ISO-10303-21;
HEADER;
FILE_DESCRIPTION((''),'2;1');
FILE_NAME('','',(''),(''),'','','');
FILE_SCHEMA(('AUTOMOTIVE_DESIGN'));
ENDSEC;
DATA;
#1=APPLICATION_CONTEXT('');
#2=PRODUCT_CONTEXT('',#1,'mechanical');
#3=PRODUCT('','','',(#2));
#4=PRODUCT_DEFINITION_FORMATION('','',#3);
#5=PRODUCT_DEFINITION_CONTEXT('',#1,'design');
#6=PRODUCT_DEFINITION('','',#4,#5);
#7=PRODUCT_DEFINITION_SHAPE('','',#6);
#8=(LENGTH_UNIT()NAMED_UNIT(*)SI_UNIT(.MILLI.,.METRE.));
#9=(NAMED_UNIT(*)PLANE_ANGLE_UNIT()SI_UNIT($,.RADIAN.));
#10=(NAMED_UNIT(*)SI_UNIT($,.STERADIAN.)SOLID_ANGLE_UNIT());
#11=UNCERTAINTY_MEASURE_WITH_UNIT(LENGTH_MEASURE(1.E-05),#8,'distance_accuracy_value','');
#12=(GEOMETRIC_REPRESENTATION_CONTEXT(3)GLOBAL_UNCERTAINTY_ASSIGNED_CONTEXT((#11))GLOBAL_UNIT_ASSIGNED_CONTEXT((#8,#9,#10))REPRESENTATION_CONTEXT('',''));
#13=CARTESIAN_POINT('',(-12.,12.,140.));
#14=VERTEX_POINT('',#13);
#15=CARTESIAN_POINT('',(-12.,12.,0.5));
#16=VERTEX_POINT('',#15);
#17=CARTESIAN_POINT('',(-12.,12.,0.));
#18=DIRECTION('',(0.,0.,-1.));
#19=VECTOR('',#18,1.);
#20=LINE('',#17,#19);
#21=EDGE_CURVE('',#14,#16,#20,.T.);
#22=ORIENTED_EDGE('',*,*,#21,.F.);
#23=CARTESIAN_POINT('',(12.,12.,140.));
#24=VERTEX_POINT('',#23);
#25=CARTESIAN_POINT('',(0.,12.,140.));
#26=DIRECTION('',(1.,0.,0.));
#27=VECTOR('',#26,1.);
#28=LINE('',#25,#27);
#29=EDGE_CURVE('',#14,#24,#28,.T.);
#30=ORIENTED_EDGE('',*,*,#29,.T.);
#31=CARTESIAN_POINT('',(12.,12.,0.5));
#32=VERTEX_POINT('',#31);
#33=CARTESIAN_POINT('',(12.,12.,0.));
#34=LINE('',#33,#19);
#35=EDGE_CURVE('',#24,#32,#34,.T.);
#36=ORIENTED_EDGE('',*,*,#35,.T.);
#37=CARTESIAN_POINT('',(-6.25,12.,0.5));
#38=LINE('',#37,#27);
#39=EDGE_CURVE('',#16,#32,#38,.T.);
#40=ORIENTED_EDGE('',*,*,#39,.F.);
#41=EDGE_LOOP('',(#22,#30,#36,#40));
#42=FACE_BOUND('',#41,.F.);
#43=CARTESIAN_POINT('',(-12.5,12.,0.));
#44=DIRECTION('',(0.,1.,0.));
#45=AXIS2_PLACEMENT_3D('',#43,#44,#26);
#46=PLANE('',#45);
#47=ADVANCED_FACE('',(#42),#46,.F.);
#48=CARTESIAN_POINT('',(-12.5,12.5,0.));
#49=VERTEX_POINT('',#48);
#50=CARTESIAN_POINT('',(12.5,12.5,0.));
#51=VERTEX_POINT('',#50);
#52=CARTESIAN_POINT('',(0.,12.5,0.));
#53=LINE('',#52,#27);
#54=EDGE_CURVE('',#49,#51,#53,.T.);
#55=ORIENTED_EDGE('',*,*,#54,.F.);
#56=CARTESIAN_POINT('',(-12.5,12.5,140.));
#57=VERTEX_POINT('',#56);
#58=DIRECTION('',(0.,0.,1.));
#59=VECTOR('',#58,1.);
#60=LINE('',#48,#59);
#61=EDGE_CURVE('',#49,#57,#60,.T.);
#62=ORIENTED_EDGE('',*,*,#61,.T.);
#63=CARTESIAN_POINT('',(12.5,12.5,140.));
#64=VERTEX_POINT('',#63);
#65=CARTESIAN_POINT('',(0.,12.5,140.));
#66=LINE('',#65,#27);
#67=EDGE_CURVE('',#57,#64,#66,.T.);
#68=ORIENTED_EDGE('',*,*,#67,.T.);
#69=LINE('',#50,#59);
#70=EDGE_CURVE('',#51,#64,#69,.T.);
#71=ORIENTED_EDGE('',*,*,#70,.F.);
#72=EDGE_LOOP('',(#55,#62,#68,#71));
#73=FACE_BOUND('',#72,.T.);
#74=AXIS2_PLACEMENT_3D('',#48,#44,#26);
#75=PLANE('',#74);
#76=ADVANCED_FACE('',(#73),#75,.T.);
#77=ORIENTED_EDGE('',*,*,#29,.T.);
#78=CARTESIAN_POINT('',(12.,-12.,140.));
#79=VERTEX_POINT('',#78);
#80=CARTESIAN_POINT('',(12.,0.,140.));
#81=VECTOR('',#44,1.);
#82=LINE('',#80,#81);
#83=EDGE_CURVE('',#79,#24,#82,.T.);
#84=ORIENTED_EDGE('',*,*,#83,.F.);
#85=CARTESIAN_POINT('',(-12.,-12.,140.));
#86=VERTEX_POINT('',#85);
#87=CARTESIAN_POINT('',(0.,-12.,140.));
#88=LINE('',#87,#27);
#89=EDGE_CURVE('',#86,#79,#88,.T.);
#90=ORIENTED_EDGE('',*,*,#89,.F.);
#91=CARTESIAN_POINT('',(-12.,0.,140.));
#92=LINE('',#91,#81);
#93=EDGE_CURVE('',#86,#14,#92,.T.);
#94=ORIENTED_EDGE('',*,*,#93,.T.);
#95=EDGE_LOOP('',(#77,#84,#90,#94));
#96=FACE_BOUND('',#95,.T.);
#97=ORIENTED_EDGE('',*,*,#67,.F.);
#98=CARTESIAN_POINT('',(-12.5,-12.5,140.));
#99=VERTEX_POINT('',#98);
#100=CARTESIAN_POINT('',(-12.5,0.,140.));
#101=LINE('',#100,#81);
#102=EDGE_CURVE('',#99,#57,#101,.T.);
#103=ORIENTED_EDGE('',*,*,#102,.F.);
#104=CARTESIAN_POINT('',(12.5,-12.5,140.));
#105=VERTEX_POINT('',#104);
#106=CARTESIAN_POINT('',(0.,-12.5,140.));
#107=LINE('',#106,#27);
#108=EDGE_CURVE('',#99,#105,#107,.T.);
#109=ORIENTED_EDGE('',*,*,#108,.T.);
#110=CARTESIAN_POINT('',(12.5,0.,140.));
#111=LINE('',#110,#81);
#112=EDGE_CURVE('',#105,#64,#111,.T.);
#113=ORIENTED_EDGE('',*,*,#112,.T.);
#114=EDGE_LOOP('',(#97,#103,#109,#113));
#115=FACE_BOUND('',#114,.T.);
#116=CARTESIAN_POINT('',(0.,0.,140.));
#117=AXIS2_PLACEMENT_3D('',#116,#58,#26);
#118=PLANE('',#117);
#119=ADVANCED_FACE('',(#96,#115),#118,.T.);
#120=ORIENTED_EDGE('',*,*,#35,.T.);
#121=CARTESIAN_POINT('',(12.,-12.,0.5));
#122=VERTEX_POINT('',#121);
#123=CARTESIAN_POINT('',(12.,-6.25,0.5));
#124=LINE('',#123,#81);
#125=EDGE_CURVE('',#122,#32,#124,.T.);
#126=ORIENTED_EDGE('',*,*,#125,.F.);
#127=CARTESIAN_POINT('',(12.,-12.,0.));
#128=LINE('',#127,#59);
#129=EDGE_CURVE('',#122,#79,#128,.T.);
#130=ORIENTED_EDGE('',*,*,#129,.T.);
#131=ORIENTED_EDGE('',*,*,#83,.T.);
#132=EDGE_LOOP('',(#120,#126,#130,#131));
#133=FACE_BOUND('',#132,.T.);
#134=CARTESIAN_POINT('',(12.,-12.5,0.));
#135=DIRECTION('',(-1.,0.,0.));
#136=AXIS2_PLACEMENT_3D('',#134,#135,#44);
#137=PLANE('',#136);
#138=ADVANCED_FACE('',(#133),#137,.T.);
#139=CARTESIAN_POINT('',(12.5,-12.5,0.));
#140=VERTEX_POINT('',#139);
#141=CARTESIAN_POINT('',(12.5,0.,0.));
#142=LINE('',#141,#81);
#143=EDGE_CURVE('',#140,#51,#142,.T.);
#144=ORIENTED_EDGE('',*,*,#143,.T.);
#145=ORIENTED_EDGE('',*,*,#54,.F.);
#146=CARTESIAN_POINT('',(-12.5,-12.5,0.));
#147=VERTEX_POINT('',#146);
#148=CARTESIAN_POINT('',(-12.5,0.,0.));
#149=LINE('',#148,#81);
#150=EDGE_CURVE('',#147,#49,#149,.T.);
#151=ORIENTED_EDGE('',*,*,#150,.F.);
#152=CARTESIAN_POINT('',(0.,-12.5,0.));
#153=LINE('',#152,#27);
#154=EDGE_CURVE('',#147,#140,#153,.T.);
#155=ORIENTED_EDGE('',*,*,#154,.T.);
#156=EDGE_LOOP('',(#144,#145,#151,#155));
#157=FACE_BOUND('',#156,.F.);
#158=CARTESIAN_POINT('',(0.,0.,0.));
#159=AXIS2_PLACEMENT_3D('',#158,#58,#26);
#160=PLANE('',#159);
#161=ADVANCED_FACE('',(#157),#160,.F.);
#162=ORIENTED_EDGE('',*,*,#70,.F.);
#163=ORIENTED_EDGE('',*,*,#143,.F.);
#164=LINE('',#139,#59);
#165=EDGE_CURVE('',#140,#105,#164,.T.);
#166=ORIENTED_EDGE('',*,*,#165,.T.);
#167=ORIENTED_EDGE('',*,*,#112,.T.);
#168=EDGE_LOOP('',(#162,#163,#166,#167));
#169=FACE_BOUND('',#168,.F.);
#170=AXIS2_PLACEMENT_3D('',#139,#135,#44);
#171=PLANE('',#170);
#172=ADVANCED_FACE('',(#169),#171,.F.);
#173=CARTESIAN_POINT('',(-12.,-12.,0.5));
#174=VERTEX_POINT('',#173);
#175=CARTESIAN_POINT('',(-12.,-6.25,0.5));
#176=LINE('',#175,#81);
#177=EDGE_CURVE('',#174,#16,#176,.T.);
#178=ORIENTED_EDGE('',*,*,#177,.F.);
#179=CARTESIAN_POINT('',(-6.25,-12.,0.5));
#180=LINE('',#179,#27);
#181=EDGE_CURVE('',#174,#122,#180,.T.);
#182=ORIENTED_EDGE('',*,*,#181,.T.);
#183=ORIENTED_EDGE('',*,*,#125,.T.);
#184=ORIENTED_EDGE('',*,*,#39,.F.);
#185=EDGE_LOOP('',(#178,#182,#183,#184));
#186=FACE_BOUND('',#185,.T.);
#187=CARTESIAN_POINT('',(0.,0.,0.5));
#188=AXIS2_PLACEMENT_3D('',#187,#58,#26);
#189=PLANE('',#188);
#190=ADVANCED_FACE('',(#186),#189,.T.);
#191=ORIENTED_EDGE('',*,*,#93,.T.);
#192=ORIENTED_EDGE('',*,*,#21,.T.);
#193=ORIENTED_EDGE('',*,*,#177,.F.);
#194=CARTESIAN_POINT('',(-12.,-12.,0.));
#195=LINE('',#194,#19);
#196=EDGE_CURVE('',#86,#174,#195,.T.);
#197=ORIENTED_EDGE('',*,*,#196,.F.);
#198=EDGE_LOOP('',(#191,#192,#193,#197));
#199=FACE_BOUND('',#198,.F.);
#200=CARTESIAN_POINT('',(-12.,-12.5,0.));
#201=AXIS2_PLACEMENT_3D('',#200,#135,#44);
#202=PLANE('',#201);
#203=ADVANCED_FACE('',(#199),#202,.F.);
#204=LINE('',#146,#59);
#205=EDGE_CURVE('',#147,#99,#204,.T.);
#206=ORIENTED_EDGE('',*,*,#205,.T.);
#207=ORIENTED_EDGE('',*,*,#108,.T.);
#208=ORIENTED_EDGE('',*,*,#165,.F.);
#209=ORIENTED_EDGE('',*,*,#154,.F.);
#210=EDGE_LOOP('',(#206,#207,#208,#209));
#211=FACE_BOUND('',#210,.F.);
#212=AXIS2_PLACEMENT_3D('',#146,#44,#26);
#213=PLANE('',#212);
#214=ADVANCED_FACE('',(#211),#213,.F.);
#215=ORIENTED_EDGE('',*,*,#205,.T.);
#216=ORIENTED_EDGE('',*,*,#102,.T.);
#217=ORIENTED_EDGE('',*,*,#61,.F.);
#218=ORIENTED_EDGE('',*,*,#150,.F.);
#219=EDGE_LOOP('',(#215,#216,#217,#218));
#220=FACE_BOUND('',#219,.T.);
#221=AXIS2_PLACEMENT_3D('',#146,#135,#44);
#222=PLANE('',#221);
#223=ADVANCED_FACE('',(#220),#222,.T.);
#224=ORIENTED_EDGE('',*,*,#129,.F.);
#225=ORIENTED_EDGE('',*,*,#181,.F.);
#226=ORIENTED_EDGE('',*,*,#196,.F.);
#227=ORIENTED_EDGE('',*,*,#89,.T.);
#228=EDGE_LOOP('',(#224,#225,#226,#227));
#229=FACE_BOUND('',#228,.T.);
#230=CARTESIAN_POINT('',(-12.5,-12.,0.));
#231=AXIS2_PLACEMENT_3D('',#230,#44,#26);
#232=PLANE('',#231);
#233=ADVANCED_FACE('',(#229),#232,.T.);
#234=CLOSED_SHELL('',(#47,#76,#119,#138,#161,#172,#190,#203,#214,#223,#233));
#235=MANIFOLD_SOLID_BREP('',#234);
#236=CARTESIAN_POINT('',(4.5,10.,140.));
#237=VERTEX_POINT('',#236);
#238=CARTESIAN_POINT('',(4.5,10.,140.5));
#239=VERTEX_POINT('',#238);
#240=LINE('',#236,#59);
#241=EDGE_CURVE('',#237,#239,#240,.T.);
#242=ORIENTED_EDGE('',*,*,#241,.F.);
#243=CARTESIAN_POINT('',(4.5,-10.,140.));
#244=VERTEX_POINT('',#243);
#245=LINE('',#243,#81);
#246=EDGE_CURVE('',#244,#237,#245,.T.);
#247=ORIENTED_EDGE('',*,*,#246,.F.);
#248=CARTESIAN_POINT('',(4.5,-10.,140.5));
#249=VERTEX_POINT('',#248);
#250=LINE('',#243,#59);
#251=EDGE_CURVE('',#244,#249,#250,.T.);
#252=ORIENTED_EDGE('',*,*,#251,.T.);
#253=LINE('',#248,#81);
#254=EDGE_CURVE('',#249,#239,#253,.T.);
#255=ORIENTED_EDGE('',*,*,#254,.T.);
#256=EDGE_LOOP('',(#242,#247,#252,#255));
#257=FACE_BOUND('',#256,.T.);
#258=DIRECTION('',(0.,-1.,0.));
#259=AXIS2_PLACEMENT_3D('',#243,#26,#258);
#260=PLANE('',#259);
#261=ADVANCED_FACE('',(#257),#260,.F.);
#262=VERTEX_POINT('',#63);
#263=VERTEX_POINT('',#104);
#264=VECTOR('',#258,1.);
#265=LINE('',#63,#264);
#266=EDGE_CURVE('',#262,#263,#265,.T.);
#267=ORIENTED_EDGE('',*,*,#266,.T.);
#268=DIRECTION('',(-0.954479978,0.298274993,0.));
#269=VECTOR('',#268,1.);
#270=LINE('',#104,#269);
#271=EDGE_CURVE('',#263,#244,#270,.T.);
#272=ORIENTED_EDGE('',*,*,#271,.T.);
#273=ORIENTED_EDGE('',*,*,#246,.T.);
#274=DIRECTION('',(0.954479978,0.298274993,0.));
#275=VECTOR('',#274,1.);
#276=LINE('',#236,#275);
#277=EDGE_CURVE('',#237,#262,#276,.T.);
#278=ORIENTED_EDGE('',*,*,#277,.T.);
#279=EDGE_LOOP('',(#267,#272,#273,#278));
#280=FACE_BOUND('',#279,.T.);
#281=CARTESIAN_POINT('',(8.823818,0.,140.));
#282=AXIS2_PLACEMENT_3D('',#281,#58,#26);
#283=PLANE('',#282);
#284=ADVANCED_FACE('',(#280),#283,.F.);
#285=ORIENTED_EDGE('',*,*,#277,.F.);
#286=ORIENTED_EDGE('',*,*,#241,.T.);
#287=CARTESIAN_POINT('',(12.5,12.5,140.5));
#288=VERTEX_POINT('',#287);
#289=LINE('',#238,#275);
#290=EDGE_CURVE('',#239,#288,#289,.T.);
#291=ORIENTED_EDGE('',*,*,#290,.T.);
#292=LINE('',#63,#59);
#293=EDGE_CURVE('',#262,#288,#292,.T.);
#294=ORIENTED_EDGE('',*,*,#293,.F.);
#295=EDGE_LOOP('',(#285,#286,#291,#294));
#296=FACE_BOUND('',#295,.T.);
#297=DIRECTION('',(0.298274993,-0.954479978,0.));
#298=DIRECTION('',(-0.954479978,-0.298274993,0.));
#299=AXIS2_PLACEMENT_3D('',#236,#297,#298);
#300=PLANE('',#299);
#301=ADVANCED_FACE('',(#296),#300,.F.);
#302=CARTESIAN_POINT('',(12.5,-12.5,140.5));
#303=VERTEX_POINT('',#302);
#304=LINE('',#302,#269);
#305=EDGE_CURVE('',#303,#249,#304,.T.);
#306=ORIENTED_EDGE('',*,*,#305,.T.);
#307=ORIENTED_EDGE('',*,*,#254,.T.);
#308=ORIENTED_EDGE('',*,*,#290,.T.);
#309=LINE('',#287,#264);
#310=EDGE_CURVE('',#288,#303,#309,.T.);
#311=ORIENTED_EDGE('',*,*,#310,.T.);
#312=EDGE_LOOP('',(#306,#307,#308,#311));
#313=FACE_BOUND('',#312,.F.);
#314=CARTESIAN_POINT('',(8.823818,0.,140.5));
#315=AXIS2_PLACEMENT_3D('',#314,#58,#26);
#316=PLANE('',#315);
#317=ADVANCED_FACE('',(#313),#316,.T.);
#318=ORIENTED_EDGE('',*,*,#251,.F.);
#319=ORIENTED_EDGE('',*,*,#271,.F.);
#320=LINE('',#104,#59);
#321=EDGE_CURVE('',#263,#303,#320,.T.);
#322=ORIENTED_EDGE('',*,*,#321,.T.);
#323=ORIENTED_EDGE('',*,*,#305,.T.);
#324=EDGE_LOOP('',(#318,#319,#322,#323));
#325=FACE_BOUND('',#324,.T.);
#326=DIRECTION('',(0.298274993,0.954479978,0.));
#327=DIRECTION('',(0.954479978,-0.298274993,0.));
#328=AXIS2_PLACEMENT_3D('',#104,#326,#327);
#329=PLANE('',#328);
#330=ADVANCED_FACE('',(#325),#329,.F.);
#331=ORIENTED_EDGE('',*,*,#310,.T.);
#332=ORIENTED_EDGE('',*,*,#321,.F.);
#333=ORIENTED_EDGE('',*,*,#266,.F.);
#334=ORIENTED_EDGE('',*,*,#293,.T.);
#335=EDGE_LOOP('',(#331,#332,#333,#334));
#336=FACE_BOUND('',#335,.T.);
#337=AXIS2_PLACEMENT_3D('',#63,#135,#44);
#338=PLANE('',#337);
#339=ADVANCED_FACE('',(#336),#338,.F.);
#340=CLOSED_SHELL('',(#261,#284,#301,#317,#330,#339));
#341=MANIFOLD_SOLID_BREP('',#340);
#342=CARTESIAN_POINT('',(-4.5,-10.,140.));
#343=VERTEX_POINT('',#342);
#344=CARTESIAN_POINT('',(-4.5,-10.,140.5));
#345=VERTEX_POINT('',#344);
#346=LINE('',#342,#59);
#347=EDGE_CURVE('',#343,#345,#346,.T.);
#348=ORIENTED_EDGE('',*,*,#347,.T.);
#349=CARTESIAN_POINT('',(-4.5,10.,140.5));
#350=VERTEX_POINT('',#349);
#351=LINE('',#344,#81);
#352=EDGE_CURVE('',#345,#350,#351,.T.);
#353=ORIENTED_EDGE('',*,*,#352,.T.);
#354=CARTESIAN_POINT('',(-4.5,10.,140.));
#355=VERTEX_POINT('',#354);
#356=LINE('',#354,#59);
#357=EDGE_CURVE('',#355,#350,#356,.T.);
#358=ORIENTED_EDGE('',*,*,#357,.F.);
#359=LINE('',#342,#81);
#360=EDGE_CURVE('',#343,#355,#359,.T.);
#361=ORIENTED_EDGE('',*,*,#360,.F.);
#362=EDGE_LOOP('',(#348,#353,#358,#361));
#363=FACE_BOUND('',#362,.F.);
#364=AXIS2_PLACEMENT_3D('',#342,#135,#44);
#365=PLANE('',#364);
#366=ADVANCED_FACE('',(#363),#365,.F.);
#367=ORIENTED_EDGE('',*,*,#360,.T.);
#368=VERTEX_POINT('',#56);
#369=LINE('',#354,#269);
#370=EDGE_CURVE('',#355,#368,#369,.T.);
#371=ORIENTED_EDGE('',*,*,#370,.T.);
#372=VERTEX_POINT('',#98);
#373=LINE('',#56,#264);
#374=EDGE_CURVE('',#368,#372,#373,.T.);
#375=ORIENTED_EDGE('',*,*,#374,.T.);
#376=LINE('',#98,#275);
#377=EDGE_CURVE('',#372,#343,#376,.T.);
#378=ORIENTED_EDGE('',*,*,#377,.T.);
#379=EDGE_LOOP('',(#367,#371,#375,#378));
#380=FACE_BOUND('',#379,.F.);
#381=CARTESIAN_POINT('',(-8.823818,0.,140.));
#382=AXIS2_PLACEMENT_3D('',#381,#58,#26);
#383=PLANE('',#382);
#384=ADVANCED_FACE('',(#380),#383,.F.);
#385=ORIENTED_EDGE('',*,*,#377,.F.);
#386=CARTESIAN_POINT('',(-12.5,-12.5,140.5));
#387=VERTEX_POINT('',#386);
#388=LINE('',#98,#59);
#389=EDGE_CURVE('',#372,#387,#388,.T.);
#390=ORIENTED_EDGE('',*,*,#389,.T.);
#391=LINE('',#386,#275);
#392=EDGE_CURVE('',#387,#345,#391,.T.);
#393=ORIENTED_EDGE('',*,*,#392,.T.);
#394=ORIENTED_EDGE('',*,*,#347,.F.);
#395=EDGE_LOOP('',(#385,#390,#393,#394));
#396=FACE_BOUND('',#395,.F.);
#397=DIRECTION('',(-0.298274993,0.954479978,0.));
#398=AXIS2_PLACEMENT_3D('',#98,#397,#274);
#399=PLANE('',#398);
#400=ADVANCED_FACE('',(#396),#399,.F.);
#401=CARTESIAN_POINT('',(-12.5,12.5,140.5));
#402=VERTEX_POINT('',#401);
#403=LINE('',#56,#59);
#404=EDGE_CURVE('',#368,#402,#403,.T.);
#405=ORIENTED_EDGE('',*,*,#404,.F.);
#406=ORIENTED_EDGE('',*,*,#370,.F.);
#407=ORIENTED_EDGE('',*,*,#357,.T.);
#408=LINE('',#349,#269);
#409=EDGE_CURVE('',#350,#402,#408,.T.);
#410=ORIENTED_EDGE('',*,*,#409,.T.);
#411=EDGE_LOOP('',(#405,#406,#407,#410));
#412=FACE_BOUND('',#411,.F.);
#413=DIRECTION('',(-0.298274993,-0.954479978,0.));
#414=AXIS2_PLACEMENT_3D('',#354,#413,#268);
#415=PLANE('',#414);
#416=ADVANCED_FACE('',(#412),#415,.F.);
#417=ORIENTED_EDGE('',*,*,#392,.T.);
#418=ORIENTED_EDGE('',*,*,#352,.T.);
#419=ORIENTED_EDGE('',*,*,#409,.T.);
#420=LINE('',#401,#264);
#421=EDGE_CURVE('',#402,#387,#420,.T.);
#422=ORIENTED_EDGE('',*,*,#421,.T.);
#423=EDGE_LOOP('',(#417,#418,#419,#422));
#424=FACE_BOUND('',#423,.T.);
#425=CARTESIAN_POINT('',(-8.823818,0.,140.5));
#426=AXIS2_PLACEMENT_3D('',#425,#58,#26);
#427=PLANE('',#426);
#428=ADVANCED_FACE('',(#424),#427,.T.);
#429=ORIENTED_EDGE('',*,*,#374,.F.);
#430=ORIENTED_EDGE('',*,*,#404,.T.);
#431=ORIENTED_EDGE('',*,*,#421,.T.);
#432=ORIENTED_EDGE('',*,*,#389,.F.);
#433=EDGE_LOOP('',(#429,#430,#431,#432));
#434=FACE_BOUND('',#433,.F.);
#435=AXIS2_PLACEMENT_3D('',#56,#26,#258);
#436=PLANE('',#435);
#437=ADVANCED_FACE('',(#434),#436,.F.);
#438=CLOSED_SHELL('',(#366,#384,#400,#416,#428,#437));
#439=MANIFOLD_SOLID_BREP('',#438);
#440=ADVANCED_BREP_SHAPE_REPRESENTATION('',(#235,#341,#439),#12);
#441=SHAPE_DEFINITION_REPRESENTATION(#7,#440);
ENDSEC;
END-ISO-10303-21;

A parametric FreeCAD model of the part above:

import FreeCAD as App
import Part
import Sketcher
Q = App.Units.Quantity


def faces_at(feature, points):
    """Names of the faces that lie closest to the given points."""
    faces = feature.Shape.Faces
    near = lambda p: min(range(len(faces)), key=lambda i: faces[i].distToShape(Part.Vertex(*p))[0])
    return sorted({f"Face{near(p) + 1}" for p in points})


def add_polygon(sketch, points):
    """Adds a closed chain of lines whose ends are joined by coincident constraints."""
    first, n = sketch.GeometryCount, len(points)
    for a, b in zip(points, points[1:] + points[:1]):
        sketch.addGeometry(Part.LineSegment(App.Vector(*a, 0), App.Vector(*b, 0)), False)
    for i in range(n):
        sketch.addConstraint(Sketcher.Constraint("Coincident", first + i, 2, first + (i + 1) % n, 1))

doc = App.newDocument("Part")
body = doc.addObject("PartDesign::Body", "Body")

# Sketch on XY plane
sketch1 = body.newObject("Sketcher::SketchObject", "Sketch")
sketch1.AttachmentSupport = (doc.getObject("XY_Plane"), [""])
sketch1.MapMode = "FlatFace"
add_polygon(sketch1, [(-12.5, 12.5), (-12.5, -12.5), (12.5, -12.5), (12.5, 12.5)])  # lines 0-3
sketch1.addConstraint([
    Sketcher.Constraint("Vertical", 0),
    Sketcher.Constraint("Horizontal", 1),
    Sketcher.Constraint("Vertical", 2),
    Sketcher.Constraint("Horizontal", 3),
    Sketcher.Constraint("Symmetric", 0, 2, 2, 2, -1, 1),
    Sketcher.Constraint("Equal", 3, 0),
    Sketcher.Constraint("DistanceX", 1, 1, 1, 2, Q("25 mm")),
])
pad1 = body.newObject("PartDesign::Pad", "Pad")
pad1.Profile = sketch1
pad1.Length = 140
doc.recompute()

thickness = body.newObject("PartDesign::Thickness", "Thickness")
thickness.Base = (pad1, faces_at(pad1, [(0, 0, 140)]))
thickness.Value = 0.5
thickness.Reversed = True
thickness.Join = "Arc"
body2 = doc.addObject("PartDesign::Body", "Body001")

# Sketch on XY plane
sketch2 = body2.newObject("Sketcher::SketchObject", "Sketch001")
sketch2.AttachmentSupport = (doc.getObject("XY_Plane001"), [""])
sketch2.MapMode = "FlatFace"
sketch2.AttachmentOffset = App.Placement(App.Vector(0, 0, 140), App.Rotation())
add_polygon(sketch2, [(-4.5, 10), (-12.5, 12.5), (-12.5, -12.5), (-4.5, -10)])  # lines 0-3
sketch2.addConstraint([
    Sketcher.Constraint("Vertical", 1),
    Sketcher.Constraint("Vertical", 3),
    Sketcher.Constraint("Equal", 0, 2),
    Sketcher.Constraint("DistanceY", 1, 2, 1, 1, Q("25 mm")),
    Sketcher.Constraint("DistanceY", 3, 1, 3, 2, Q("20 mm")),
    Sketcher.Constraint("DistanceY", 2, 2, -1, 1, Q("10 mm")),
    Sketcher.Constraint("DistanceX", 1, 2, 2, 2, Q("8 mm")),
    Sketcher.Constraint("DistanceX", 0, 2, -1, 1, Q("12.5 mm")),
])
pad2 = body2.newObject("PartDesign::Pad", "Pad001")
pad2.Profile = sketch2
pad2.Length = 0.5
body3 = doc.addObject("PartDesign::Body", "Body002")
doc.recompute()

mirroring = doc.addObject("Part::Mirroring", "Mirroring")
mirroring.Source = body2
mirroring.Base = App.Vector(0, 0, 0)
mirroring.Normal = App.Vector(1, 0, 0)
body3.BaseFeature = mirroring
doc.recompute()
mirroring.Visibility = False

doc.recompute()
